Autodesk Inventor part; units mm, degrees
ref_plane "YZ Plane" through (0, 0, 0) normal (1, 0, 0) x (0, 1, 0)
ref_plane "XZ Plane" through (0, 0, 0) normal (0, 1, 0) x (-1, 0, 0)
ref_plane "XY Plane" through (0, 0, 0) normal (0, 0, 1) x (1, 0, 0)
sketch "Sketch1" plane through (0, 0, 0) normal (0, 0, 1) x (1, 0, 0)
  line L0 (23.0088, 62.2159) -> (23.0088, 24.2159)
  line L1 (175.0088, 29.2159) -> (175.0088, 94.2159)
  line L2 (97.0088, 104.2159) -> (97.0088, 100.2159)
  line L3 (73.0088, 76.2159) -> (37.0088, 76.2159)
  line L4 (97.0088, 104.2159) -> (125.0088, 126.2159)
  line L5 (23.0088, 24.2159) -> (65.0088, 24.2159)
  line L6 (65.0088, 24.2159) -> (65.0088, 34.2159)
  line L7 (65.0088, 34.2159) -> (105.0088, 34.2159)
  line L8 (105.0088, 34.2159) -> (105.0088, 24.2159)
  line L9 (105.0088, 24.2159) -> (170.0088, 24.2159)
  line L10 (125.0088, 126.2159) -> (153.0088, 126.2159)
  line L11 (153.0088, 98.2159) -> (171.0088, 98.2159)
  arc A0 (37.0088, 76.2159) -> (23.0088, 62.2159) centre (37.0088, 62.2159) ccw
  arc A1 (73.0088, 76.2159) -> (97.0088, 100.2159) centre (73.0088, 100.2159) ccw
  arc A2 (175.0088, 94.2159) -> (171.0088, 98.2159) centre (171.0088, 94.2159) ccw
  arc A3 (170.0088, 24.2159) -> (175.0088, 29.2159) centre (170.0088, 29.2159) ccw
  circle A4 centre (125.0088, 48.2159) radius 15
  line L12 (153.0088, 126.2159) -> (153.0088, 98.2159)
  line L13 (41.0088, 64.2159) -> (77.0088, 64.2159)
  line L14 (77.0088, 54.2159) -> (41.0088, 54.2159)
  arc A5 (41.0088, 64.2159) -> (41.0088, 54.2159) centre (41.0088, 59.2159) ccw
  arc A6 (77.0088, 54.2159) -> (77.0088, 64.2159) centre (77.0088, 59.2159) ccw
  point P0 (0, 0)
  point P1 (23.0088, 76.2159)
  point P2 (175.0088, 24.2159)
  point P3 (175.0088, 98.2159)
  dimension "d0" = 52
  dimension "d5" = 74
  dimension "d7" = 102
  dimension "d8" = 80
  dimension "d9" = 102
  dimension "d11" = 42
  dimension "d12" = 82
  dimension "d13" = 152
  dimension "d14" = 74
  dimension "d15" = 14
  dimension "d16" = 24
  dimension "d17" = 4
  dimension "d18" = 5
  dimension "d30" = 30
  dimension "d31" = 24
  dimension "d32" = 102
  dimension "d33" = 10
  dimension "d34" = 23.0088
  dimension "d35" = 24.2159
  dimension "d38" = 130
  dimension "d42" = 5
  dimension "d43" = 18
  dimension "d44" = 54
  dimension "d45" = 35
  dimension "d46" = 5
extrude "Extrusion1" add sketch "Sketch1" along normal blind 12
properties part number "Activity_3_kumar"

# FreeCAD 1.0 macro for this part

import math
import FreeCAD as App
import Part
import Sketcher

doc = App.newDocument("Part")
params = doc.addObject("Spreadsheet::Sheet", "Params")
for row, (alias, value) in enumerate([
    ("sketch1_diameter", "30 mm"),
    ("sketch1_radius", "14 mm"),
    ("sketch1_radius2", "5 mm"),
    ("sketch1_radius3", "4 mm"),
    ("sketch1_radius4", "24 mm"),
    ("pad1_length", "12 mm"),
], start=1):
    params.set(f"A{row}", alias)
    params.set(f"B{row}", "=" + value)
    params.setAlias(f"B{row}", alias)

body = doc.addObject("PartDesign::Body", "Body")

sketch1 = body.newObject("Sketcher::SketchObject", "Sketch")
sketch1.AttachmentSupport = (doc.getObject("XY_Plane"), [""])
sketch1.MapMode = "FlatFace"
sketch1.addGeometry(Part.ArcOfCircle(Part.Circle(App.Vector(37, 62.2, 0), App.Vector(0, 0, 1), 14), math.radians(90), math.radians(180)), False)
sketch1.addGeometry(Part.LineSegment(App.Vector(23, 62.2, 0), App.Vector(23, 24.2, 0)), False)
sketch1.addGeometry(Part.LineSegment(App.Vector(23, 24.2, 0), App.Vector(65, 24.2, 0)), False)
sketch1.addGeometry(Part.LineSegment(App.Vector(65, 24.2, 0), App.Vector(65, 34.2, 0)), False)
sketch1.addGeometry(Part.LineSegment(App.Vector(65, 34.2, 0), App.Vector(105, 34.2, 0)), False)
sketch1.addGeometry(Part.LineSegment(App.Vector(105, 34.2, 0), App.Vector(105, 24.2, 0)), False)
sketch1.addGeometry(Part.LineSegment(App.Vector(105, 24.2, 0), App.Vector(170, 24.2, 0)), False)
sketch1.addGeometry(Part.ArcOfCircle(Part.Circle(App.Vector(170, 29.2, 0), App.Vector(0, 0, 1), 5), math.radians(-90), math.radians(0)), False)
sketch1.addGeometry(Part.LineSegment(App.Vector(175, 29.2, 0), App.Vector(175, 94.2, 0)), False)
sketch1.addGeometry(Part.ArcOfCircle(Part.Circle(App.Vector(171, 94.2, 0), App.Vector(0, 0, 1), 4), math.radians(0), math.radians(90)), False)
sketch1.addGeometry(Part.LineSegment(App.Vector(171, 98.2, 0), App.Vector(153, 98.2, 0)), False)
sketch1.addGeometry(Part.LineSegment(App.Vector(153, 98.2, 0), App.Vector(153, 126.2, 0)), False)
sketch1.addGeometry(Part.LineSegment(App.Vector(153, 126.2, 0), App.Vector(125, 126.2, 0)), False)
sketch1.addGeometry(Part.LineSegment(App.Vector(125, 126.2, 0), App.Vector(97, 104.2, 0)), False)
sketch1.addGeometry(Part.LineSegment(App.Vector(97, 104.2, 0), App.Vector(97, 100.2, 0)), False)
sketch1.addGeometry(Part.ArcOfCircle(Part.Circle(App.Vector(73, 100.2, 0), App.Vector(0, 0, 1), 24), math.radians(-90), math.radians(0)), False)
sketch1.addGeometry(Part.LineSegment(App.Vector(73, 76.2, 0), App.Vector(37, 76.2, 0)), False)
sketch1.addGeometry(Part.ArcOfCircle(Part.Circle(App.Vector(41, 59.2, 0), App.Vector(0, 0, 1), 5), math.radians(90), math.radians(270)), False)
sketch1.addGeometry(Part.LineSegment(App.Vector(41, 64.2, 0), App.Vector(77, 64.2, 0)), False)
sketch1.addGeometry(Part.ArcOfCircle(Part.Circle(App.Vector(77, 59.2, 0), App.Vector(0, 0, 1), 5), math.radians(-90), math.radians(90)), False)
sketch1.addGeometry(Part.LineSegment(App.Vector(77, 54.2, 0), App.Vector(41, 54.2, 0)), False)
sketch1.addGeometry(Part.Circle(App.Vector(125, 48.2, 0), App.Vector(0, 0, 1), 15), False)
sketch1.addConstraint(Sketcher.Constraint("Tangent", 0, 2, 1, 1))
sketch1.addConstraint(Sketcher.Constraint("Coincident", 1, 2, 2, 1))
sketch1.addConstraint(Sketcher.Constraint("Coincident", 2, 2, 3, 1))
sketch1.addConstraint(Sketcher.Constraint("Coincident", 3, 2, 4, 1))
sketch1.addConstraint(Sketcher.Constraint("Coincident", 4, 2, 5, 1))
sketch1.addConstraint(Sketcher.Constraint("Coincident", 5, 2, 6, 1))
sketch1.addConstraint(Sketcher.Constraint("Tangent", 6, 2, 7, 1))
sketch1.addConstraint(Sketcher.Constraint("Tangent", 7, 2, 8, 1))
sketch1.addConstraint(Sketcher.Constraint("Tangent", 8, 2, 9, 1))
sketch1.addConstraint(Sketcher.Constraint("Tangent", 9, 2, 10, 1))
sketch1.addConstraint(Sketcher.Constraint("Coincident", 10, 2, 11, 1))
sketch1.addConstraint(Sketcher.Constraint("Coincident", 11, 2, 12, 1))
sketch1.addConstraint(Sketcher.Constraint("Coincident", 12, 2, 13, 1))
sketch1.addConstraint(Sketcher.Constraint("Coincident", 13, 2, 14, 1))
sketch1.addConstraint(Sketcher.Constraint("Tangent", 14, 2, 15, 2))
sketch1.addConstraint(Sketcher.Constraint("Tangent", 15, 1, 16, 1))
sketch1.addConstraint(Sketcher.Constraint("Tangent", 16, 2, 0, 1))
sketch1.addConstraint(Sketcher.Constraint("Tangent", 17, 1, 18, 1))
sketch1.addConstraint(Sketcher.Constraint("Tangent", 18, 2, 19, 2))
sketch1.addConstraint(Sketcher.Constraint("Tangent", 19, 1, 20, 1))
sketch1.addConstraint(Sketcher.Constraint("Tangent", 20, 2, 17, 2))
sketch1.addConstraint(Sketcher.Constraint("Vertical", 1))
sketch1.addConstraint(Sketcher.Constraint("Horizontal", 2))
sketch1.addConstraint(Sketcher.Constraint("Vertical", 3))
sketch1.addConstraint(Sketcher.Constraint("Horizontal", 4))
sketch1.addConstraint(Sketcher.Constraint("Vertical", 5))
sketch1.addConstraint(Sketcher.Constraint("Horizontal", 6))
sketch1.addConstraint(Sketcher.Constraint("Vertical", 8))
sketch1.addConstraint(Sketcher.Constraint("Horizontal", 10))
sketch1.addConstraint(Sketcher.Constraint("Vertical", 11))
sketch1.addConstraint(Sketcher.Constraint("Horizontal", 12))
sketch1.addConstraint(Sketcher.Constraint("Vertical", 14))
sketch1.addConstraint(Sketcher.Constraint("Horizontal", 16))
sketch1.addConstraint(Sketcher.Constraint("Horizontal", 18))
sketch1.addConstraint(Sketcher.Constraint("Horizontal", 20))
sketch1.addConstraint(Sketcher.Constraint("Equal", 7, 17))
sketch1.addConstraint(Sketcher.Constraint("Horizontal", 2, 2, 5, 2))
sketch1.addConstraint(Sketcher.Constraint("Vertical", 21, 3, 12, 2))
sketch1.addConstraint(Sketcher.Constraint("Equal", 16, 18))
sketch1.addConstraint(Sketcher.Constraint("Equal", 6, 8))
sketch1.addConstraint(Sketcher.Constraint("Equal", 12, 11))
sketch1.addConstraint(Sketcher.Constraint("Diameter", 21, 30.0))
sketch1.addConstraint(Sketcher.Constraint("Radius", 0, 14.0))
sketch1.addConstraint(Sketcher.Constraint("Radius", 7, 5.0))
sketch1.addConstraint(Sketcher.Constraint("Radius", 9, 4.0))
sketch1.addConstraint(Sketcher.Constraint("Radius", 15, 24.0))
sketch1.addConstraint(Sketcher.Constraint("DistanceX", 2, 1, 2, 2, 42.0))
sketch1.addConstraint(Sketcher.Constraint("DistanceX", 10, 2, 10, 1, 18.0))
sketch1.addConstraint(Sketcher.Constraint("DistanceY", 3, 1, 3, 2, 10.0))
sketch1.addConstraint(Sketcher.Constraint("DistanceY", 14, 2, 14, 1, 4.0))
sketch1.addConstraint(Sketcher.Constraint("DistanceX", 0, 3, 17, 3, 4.0))
sketch1.addConstraint(Sketcher.Constraint("DistanceY", 7, 3, 17, 3, 30.0))
sketch1.addConstraint(Sketcher.Constraint("DistanceX", 17, 3, 9, 3, 130.0))
sketch1.addConstraint(Sketcher.Constraint("DistanceY", 17, 3, 9, 3, 35.0))
sketch1.addConstraint(Sketcher.Constraint("DistanceX", 15, 3, 21, 3, 52.0))
sketch1.addConstraint(Sketcher.Constraint("DistanceY", 21, 3, 15, 3, 52.0))
sketch1.addConstraint(Sketcher.Constraint("DistanceX", 0, 2, 19, 3, 54.0))
sketch1.addConstraint(Sketcher.Constraint("DistanceY", 4, 2, 21, 3, 14.0))
sketch1.addConstraint(Sketcher.Constraint("DistanceY", -1, 1, 1, 2, 24.216))
sketch1.addConstraint(Sketcher.Constraint("DistanceX", -1, 1, 0, 2, 23.0088))
sketch1.setExpression("Constraints[41]", "Params.sketch1_diameter")
sketch1.setExpression("Constraints[42]", "Params.sketch1_radius")
sketch1.setExpression("Constraints[43]", "Params.sketch1_radius2")
sketch1.setExpression("Constraints[44]", "Params.sketch1_radius3")
sketch1.setExpression("Constraints[45]", "Params.sketch1_radius4")
pad1 = body.newObject("PartDesign::Pad", "Pad")
pad1.Profile = sketch1
pad1.setExpression("Length", "Params.pad1_length")

doc.recompute()
